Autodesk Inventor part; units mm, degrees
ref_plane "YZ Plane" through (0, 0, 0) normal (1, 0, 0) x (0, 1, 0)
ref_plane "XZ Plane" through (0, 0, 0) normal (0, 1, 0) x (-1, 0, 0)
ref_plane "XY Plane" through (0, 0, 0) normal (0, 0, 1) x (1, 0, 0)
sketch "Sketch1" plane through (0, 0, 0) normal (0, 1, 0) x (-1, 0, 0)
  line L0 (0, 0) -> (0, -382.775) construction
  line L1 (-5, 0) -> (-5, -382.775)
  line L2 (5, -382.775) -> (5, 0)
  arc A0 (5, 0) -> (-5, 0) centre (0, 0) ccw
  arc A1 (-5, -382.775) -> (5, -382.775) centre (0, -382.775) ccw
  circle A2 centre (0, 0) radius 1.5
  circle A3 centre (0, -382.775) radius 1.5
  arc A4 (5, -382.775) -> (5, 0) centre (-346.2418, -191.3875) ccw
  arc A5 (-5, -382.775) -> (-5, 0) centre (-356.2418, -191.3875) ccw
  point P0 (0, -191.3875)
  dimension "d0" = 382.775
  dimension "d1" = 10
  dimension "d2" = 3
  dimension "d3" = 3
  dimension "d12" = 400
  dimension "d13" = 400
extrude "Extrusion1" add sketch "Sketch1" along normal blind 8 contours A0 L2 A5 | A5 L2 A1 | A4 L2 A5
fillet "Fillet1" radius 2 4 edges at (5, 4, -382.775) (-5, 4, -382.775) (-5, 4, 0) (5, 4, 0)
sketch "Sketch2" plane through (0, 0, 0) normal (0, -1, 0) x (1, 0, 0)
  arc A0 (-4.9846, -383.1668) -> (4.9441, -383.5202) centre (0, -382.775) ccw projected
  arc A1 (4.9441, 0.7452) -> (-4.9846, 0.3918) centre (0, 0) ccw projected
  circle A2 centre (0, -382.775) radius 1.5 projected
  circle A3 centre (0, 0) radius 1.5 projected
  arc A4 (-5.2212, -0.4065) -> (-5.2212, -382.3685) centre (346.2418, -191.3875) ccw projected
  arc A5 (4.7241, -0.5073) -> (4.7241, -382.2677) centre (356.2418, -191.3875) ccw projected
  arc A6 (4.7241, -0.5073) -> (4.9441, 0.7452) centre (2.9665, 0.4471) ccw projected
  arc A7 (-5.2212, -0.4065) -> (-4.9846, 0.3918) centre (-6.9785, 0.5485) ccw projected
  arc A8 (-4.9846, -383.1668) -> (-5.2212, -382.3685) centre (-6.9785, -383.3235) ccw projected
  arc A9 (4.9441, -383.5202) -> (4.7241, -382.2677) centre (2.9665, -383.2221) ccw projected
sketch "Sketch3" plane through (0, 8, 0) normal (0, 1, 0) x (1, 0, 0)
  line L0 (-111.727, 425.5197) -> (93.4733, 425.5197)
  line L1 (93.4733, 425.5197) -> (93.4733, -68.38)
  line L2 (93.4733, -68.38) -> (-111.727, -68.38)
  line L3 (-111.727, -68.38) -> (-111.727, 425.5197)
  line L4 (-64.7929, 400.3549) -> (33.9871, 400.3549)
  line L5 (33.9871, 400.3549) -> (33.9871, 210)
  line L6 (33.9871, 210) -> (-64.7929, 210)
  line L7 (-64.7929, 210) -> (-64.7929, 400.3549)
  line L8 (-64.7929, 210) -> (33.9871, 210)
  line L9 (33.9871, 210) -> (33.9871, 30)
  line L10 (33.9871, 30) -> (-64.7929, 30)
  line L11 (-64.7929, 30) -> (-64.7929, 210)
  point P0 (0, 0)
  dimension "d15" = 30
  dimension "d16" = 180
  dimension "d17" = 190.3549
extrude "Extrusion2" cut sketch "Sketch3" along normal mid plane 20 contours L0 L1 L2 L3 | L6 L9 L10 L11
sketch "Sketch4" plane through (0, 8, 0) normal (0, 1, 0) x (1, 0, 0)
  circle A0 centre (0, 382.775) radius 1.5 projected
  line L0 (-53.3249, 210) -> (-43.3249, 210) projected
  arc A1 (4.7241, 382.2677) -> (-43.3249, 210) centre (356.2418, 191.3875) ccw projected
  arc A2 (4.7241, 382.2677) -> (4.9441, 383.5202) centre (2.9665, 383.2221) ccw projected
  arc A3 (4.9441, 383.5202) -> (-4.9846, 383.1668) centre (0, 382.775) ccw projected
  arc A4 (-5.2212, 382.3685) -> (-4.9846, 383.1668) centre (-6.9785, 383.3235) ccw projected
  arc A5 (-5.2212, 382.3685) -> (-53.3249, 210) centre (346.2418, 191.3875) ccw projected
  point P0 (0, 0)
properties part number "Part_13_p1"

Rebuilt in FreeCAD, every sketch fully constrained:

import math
import FreeCAD as App
import Part
import Sketcher
from FreeCAD import Vector


def edges_at(feature, points):
    """Names of the edges that pass closest to the given points."""
    edges = feature.Shape.Edges
    near = lambda p: min(range(len(edges)), key=lambda i: edges[i].distToShape(Part.Vertex(*p))[0])
    return sorted({f"Edge{near(p) + 1}" for p in points})

doc = App.newDocument("Part")
body = doc.addObject("PartDesign::Body", "Body")

sketch1 = body.newObject("Sketcher::SketchObject", "Sketch")
sketch1.AttachmentSupport = (doc.getObject("XZ_Plane"), [""])
sketch1.MapMode = "FlatFace"
sketch1.addGeometry(Part.ArcOfCircle(Part.Circle(Vector(0, 0, 0), Vector(0, 0, 1), 5), math.radians(0), math.radians(180)), False)
sketch1.addGeometry(Part.ArcOfCircle(Part.Circle(Vector(356.2418, -191.3875, 0), Vector(0, 0, 1), 399.999972), math.radians(151.414556), math.radians(208.585444)), False)
sketch1.addGeometry(Part.ArcOfCircle(Part.Circle(Vector(0, -382.775, 0), Vector(0, 0, 1), 5), math.radians(180), math.radians(360)), False)
sketch1.addGeometry(Part.ArcOfCircle(Part.Circle(Vector(346.2418, -191.3875, 0), Vector(0, 0, 1), 399.999972), math.radians(151.414556), math.radians(208.585444)), False)
sketch1.addGeometry(Part.Circle(Vector(0, 0, 0), Vector(0, 0, 1), 1.5), False)
sketch1.addGeometry(Part.Circle(Vector(0, -382.775, 0), Vector(0, 0, 1), 1.5), False)
sketch1.addConstraint(Sketcher.Constraint("Coincident", 0, 1, 1, 1))
sketch1.addConstraint(Sketcher.Constraint("Coincident", 1, 2, 2, 2))
sketch1.addConstraint(Sketcher.Constraint("Coincident", 2, 1, 3, 2))
sketch1.addConstraint(Sketcher.Constraint("Coincident", 3, 1, 0, 2))
sketch1.addConstraint(Sketcher.Constraint("Coincident", 0, 3, -1, 1))
sketch1.addConstraint(Sketcher.Constraint("Coincident", 4, 3, -1, 1))
sketch1.addConstraint(Sketcher.Constraint("Coincident", 5, 3, 2, 3))
sketch1.addConstraint(Sketcher.Constraint("Equal", 0, 2))
sketch1.addConstraint(Sketcher.Constraint("Equal", 1, 3))
sketch1.addConstraint(Sketcher.Constraint("Equal", 4, 5))
sketch1.addConstraint(Sketcher.Constraint("Symmetric", 1, 2, 2, 1, -2))
sketch1.addConstraint(Sketcher.Constraint("PointOnObject", 0, 1, -1))
sketch1.addConstraint(Sketcher.Constraint("PointOnObject", 3, 1, -1))
sketch1.addConstraint(Sketcher.Constraint("Horizontal", 5, 3, 1, 2))
sketch1.addConstraint(Sketcher.Constraint("Diameter", 4, 3.0))
sketch1.addConstraint(Sketcher.Constraint("Radius", 0, 5.0))
sketch1.addConstraint(Sketcher.Constraint("Radius", 1, 400.0))
sketch1.addConstraint(Sketcher.Constraint("DistanceY", 2, 3, -1, 1, 382.775))
pad1 = body.newObject("PartDesign::Pad", "Pad")
pad1.Profile = sketch1
pad1.Length = 8
pad1.Reversed = True
doc.recompute()

fillet = body.newObject("PartDesign::Fillet", "Fillet")
fillet.Base = (pad1, edges_at(pad1, [
    (5, 4, -382.775),
    (-5, 4, -382.775),
    (-5, 4, 0),
    (5, 4, 0),
]))
fillet.Radius = 2

sketch2 = body.newObject("Sketcher::SketchObject", "Sketch001")
sketch2.AttachmentSupport = (doc.getObject("XZ_Plane"), [""])
sketch2.MapMode = "FlatFace"
sketch2.AttachmentOffset = App.Placement(Vector(0, 0, -8), App.Rotation())
sketch2.addGeometry(Part.LineSegment(Vector(93.4733, -425.5197, 0), Vector(-111.727, -425.5197, 0)), False)
sketch2.addGeometry(Part.LineSegment(Vector(-111.727, -425.5197, 0), Vector(-111.727, 68.38, 0)), False)
sketch2.addGeometry(Part.LineSegment(Vector(-111.727, 68.38, 0), Vector(93.4733, 68.38, 0)), False)
sketch2.addGeometry(Part.LineSegment(Vector(93.4733, 68.38, 0), Vector(93.4733, -425.5197, 0)), False)
sketch2.addGeometry(Part.LineSegment(Vector(-64.7929, -210, 0), Vector(-64.7929, -400.3549, 0)), False)
sketch2.addGeometry(Part.LineSegment(Vector(-64.7929, -400.3549, 0), Vector(33.9871, -400.3549, 0)), False)
sketch2.addGeometry(Part.LineSegment(Vector(33.9871, -400.3549, 0), Vector(33.9871, -210, 0)), False)
sketch2.addGeometry(Part.LineSegment(Vector(33.9871, -210, 0), Vector(-64.7929, -210, 0)), False)
sketch2.addConstraint(Sketcher.Constraint("Coincident", 0, 2, 1, 1))
sketch2.addConstraint(Sketcher.Constraint("Coincident", 1, 2, 2, 1))
sketch2.addConstraint(Sketcher.Constraint("Coincident", 2, 2, 3, 1))
sketch2.addConstraint(Sketcher.Constraint("Coincident", 3, 2, 0, 1))
sketch2.addConstraint(Sketcher.Constraint("Coincident", 4, 2, 5, 1))
sketch2.addConstraint(Sketcher.Constraint("Coincident", 5, 2, 6, 1))
sketch2.addConstraint(Sketcher.Constraint("Coincident", 6, 2, 7, 1))
sketch2.addConstraint(Sketcher.Constraint("Coincident", 7, 2, 4, 1))
sketch2.addConstraint(Sketcher.Constraint("Horizontal", 0))
sketch2.addConstraint(Sketcher.Constraint("Vertical", 1))
sketch2.addConstraint(Sketcher.Constraint("Horizontal", 2))
sketch2.addConstraint(Sketcher.Constraint("Vertical", 3))
sketch2.addConstraint(Sketcher.Constraint("Vertical", 4))
sketch2.addConstraint(Sketcher.Constraint("Horizontal", 5))
sketch2.addConstraint(Sketcher.Constraint("Vertical", 6))
sketch2.addConstraint(Sketcher.Constraint("Horizontal", 7))
sketch2.addConstraint(Sketcher.Constraint("DistanceY", 4, 2, 4, 1, 190.355))
sketch2.addConstraint(Sketcher.Constraint("DistanceY", 6, 2, -1, 1, 210.0))
sketch2.addConstraint(Sketcher.Constraint("DistanceX", 5, 1, 5, 2, 98.78))
sketch2.addConstraint(Sketcher.Constraint("DistanceY", -1, 1, 1, 2, 68.38))
sketch2.addConstraint(Sketcher.Constraint("DistanceX", 0, 2, 0, 1, 205.2003))
sketch2.addConstraint(Sketcher.Constraint("DistanceY", 1, 1, 1, 2, 493.8997))
sketch2.addConstraint(Sketcher.Constraint("DistanceX", 0, 2, -1, 1, 111.727))
sketch2.addConstraint(Sketcher.Constraint("DistanceX", 4, 2, -1, 1, 64.793))
pocket1 = body.newObject("PartDesign::Pocket", "Pocket")
pocket1.Profile = sketch2
pocket1.Length = 20
pocket1.Midplane = True

doc.recompute()
